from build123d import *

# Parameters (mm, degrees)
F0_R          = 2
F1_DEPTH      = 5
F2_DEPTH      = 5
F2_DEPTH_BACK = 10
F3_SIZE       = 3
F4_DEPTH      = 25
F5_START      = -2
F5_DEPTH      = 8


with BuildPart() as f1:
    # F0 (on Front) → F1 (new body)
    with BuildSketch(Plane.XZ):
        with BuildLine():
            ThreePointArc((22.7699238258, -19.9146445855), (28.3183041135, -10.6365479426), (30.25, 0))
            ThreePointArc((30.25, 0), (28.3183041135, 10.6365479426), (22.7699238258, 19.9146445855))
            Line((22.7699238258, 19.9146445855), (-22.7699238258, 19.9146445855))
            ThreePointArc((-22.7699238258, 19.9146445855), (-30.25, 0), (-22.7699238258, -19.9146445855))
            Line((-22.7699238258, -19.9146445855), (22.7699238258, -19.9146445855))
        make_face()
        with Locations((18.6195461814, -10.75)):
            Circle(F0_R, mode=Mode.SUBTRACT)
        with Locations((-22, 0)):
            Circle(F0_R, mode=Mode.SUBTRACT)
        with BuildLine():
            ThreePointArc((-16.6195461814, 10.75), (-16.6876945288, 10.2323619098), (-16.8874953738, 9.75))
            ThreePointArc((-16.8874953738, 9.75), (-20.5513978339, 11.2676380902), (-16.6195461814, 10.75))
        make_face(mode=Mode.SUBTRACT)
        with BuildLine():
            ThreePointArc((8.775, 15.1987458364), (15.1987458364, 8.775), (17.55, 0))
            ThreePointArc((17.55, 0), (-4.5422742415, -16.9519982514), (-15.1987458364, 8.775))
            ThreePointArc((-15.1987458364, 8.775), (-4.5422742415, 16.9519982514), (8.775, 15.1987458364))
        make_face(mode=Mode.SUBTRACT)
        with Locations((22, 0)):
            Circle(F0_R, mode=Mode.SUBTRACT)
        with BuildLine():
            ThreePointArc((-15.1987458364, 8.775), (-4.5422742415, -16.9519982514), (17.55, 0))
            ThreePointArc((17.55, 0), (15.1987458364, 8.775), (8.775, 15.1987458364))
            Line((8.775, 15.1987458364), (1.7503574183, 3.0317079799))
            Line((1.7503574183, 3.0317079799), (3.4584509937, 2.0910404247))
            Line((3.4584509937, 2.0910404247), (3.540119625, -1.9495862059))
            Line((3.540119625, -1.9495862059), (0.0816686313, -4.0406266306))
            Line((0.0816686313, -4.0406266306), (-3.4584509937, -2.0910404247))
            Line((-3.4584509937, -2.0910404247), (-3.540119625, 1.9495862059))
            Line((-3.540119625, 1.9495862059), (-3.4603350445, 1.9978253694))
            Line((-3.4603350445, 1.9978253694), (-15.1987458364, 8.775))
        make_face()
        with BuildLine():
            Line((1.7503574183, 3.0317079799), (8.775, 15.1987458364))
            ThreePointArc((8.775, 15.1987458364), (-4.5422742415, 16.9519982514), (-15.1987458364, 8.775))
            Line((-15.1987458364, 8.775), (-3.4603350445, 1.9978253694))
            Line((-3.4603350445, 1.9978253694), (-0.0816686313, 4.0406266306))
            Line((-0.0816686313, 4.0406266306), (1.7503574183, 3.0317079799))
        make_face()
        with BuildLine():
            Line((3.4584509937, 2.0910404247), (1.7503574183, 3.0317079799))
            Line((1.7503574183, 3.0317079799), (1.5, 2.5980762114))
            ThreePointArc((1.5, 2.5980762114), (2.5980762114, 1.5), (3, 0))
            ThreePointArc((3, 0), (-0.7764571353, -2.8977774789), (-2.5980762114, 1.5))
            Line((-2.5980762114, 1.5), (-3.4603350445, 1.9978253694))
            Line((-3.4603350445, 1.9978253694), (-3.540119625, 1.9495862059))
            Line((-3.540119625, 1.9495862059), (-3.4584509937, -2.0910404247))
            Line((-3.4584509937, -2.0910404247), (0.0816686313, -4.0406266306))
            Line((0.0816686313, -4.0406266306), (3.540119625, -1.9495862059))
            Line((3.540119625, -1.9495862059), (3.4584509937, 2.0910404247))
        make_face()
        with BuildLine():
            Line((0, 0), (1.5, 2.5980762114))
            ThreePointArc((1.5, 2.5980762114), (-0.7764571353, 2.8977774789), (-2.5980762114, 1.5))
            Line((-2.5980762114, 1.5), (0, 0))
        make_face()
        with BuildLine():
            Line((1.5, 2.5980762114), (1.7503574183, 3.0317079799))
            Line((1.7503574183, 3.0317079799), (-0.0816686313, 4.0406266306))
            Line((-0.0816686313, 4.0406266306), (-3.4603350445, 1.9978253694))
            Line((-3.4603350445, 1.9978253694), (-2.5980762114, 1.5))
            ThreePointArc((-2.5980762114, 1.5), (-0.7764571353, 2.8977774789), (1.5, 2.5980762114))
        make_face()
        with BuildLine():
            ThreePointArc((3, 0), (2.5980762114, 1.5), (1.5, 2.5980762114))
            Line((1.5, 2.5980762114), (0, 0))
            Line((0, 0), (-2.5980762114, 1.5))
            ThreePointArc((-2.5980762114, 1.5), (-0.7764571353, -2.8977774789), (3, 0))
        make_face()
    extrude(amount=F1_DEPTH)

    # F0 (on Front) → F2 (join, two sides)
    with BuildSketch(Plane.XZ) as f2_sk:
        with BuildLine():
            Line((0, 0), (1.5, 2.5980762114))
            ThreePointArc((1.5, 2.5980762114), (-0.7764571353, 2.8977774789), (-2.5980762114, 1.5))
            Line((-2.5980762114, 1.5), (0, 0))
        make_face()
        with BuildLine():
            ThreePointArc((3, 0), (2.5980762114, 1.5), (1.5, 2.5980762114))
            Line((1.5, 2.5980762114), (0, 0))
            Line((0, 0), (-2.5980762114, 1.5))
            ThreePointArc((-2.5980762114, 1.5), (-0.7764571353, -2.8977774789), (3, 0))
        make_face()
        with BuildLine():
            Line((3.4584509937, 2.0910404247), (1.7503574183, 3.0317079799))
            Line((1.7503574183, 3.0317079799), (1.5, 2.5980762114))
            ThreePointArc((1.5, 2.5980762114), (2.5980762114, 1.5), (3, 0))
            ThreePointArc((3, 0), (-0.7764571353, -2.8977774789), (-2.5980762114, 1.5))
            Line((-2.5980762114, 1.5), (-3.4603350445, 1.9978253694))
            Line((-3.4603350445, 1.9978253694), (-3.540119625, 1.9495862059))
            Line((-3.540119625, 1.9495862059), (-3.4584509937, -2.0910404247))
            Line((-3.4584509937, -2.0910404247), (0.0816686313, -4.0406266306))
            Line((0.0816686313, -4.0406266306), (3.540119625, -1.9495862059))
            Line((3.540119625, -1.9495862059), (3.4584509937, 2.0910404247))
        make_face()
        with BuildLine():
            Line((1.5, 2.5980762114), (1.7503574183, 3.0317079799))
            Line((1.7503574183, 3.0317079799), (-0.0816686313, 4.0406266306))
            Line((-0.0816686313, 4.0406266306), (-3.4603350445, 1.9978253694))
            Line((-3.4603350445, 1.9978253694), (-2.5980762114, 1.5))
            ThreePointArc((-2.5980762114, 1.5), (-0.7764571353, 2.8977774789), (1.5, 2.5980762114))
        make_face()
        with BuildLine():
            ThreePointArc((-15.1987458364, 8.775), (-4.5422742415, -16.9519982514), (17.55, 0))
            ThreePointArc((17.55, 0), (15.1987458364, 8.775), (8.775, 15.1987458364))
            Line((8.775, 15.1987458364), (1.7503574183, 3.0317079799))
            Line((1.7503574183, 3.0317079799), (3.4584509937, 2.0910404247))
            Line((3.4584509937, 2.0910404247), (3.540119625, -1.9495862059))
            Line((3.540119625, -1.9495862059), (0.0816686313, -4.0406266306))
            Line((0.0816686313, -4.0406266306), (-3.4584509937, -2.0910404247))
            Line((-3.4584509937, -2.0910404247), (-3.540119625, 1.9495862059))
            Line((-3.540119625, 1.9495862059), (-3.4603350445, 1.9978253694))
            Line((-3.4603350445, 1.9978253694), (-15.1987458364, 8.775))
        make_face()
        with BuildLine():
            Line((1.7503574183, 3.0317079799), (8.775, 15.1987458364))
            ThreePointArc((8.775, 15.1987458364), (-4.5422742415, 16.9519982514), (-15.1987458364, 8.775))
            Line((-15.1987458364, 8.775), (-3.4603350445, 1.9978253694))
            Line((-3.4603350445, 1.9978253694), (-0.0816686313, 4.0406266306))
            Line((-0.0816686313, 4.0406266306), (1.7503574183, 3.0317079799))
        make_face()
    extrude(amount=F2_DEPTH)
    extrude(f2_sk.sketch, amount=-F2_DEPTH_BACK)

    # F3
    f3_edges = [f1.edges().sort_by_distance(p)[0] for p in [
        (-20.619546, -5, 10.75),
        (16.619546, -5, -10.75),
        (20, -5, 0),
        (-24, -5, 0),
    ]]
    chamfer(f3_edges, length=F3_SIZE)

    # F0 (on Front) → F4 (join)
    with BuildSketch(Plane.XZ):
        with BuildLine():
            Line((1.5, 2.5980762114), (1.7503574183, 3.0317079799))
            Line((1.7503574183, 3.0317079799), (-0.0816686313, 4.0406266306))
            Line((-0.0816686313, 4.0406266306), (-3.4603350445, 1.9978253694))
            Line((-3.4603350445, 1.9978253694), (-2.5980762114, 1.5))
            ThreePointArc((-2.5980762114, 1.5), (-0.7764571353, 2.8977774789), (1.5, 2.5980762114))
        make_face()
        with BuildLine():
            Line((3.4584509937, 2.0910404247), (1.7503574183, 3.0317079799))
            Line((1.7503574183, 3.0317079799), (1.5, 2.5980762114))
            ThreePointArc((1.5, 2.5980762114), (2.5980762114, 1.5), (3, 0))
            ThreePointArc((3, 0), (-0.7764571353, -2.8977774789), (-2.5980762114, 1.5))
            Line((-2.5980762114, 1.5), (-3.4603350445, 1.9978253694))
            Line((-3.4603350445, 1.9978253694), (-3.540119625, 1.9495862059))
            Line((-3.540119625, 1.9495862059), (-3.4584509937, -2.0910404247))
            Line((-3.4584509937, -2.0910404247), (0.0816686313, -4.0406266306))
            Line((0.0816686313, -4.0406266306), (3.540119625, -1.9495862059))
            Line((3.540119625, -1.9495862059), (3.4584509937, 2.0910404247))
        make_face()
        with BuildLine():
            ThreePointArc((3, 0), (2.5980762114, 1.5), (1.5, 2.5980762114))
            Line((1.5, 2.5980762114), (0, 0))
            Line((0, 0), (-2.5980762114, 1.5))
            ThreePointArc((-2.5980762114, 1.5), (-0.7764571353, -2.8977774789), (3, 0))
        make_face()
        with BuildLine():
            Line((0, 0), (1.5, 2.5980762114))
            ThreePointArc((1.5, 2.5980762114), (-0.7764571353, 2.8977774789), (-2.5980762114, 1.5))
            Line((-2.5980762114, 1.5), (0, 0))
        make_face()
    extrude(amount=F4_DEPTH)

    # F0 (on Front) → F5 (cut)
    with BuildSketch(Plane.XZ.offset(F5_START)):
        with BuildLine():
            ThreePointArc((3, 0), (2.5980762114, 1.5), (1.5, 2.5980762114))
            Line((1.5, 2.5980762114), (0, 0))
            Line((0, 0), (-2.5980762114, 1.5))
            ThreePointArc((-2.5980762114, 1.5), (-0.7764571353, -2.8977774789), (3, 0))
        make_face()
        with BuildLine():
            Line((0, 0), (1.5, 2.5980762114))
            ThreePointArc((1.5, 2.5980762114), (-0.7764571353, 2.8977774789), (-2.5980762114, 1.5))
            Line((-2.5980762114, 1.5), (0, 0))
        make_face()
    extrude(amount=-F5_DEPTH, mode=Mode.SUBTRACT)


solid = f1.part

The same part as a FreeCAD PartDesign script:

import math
import FreeCAD as App
import Part
import Sketcher
from FreeCAD import Vector


def edges_at(feature, points):
    """Names of the edges that pass closest to the given points."""
    edges = feature.Shape.Edges
    near = lambda p: min(range(len(edges)), key=lambda i: edges[i].distToShape(Part.Vertex(*p))[0])
    return sorted({f"Edge{near(p) + 1}" for p in points})

doc = App.newDocument("Part")
params = doc.addObject("Spreadsheet::Sheet", "Params")
for row, (alias, value) in enumerate([
    ("sketch1_diameter", "4 mm"),
    ("sketch1_radius", "30.25 mm"),
    ("pad1_length", "5 mm"),
    ("sketch2_radius", "17.55 mm"),
    ("pad2_length", "5 mm"),
    ("pad2_length2", "10 mm"),
    ("chamfer_size", "3 mm"),
    ("pad3_length", "25 mm"),
    ("sketch4_radius", "3 mm"),
    ("pocket1_length", "8 mm"),
], start=1):
    params.set(f"A{row}", alias)
    params.set(f"B{row}", "=" + value)
    params.setAlias(f"B{row}", alias)

body = doc.addObject("PartDesign::Body", "Body")

# Sketch on XZ plane
sketch1 = body.newObject("Sketcher::SketchObject", "Sketch")
sketch1.AttachmentSupport = (doc.getObject("XZ_Plane"), [""])
sketch1.MapMode = "FlatFace"
sketch1.addGeometry([
    Part.ArcOfCircle(Part.Circle(Vector(0, 0, 0), Vector(0, 0, 1), 30.2), math.radians(-41), math.radians(41)),  # 0
    Part.LineSegment(Vector(22.8, 19.9, 0), Vector(-22.8, 19.9, 0)),  # 1
    Part.ArcOfCircle(Part.Circle(Vector(0, 0, 0), Vector(0, 0, 1), 30.2), math.radians(139), math.radians(221)),  # 2
    Part.LineSegment(Vector(-22.8, -19.9, 0), Vector(22.8, -19.9, 0)),  # 3
    Part.Circle(Vector(18.6, -10.8, 0), Vector(0, 0, 1), 2),  # 4
    Part.Circle(Vector(-22, 0, 0), Vector(0, 0, 1), 2),  # 5
    Part.ArcOfCircle(Part.Circle(Vector(-18.6, 10.8, 0), Vector(0, 0, 1), 2), math.radians(0), math.radians(330)),  # 6
    Part.ArcOfCircle(Part.Circle(Vector(-18.6, 10.8, 0), Vector(0, 0, 1), 2), math.radians(-30), math.radians(0)),  # 7
    Part.Circle(Vector(22, 0, 0), Vector(0, 0, 1), 2),  # 8
], False)
sketch1.addConstraint([
    Sketcher.Constraint("Coincident", 0, 2, 1, 1),
    Sketcher.Constraint("Coincident", 1, 2, 2, 1),
    Sketcher.Constraint("Coincident", 2, 2, 3, 1),
    Sketcher.Constraint("Coincident", 3, 2, 0, 1),
    Sketcher.Constraint("Tangent", 6, 1, 7, 2),
    Sketcher.Constraint("Coincident", 7, 1, 6, 2),
    Sketcher.Constraint("Horizontal", 1),
    Sketcher.Constraint("Horizontal", 3),
    Sketcher.Constraint("Coincident", 0, 3, -1, 1),
    Sketcher.Constraint("Coincident", 2, 3, -1, 1),
    Sketcher.Constraint("Equal", 0, 2),
    Sketcher.Constraint("Equal", 4, 5),
    Sketcher.Constraint("Equal", 5, 6),
    Sketcher.Constraint("Equal", 7, 8),
    Sketcher.Constraint("Symmetric", 4, 3, 6, 3, -1, 1),
    Sketcher.Constraint("Symmetric", 5, 3, 8, 3, -1, 1),
    Sketcher.Constraint("PointOnObject", 5, 3, -1),
    Sketcher.Constraint("Horizontal", 7, 3, 6, 1),
    Sketcher.Constraint("Vertical", 1, 2, 2, 2),
    Sketcher.Constraint("Diameter", 4, 4.0),
    Sketcher.Constraint("Radius", 0, 30.25),
    Sketcher.Constraint("DistanceX", 5, 3, -1, 1, 22.0),
    Sketcher.Constraint("DistanceY", 7, 1, 6, 1, 1.0),
    Sketcher.Constraint("DistanceY", 4, 3, 6, 3, 21.5),
    Sketcher.Constraint("DistanceX", 1, 2, 1, 1, 45.539848),
    Sketcher.Constraint("DistanceX", 6, 3, 0, 2, 41.38947),
])
sketch1.setExpression("Constraints[19]", "Params.sketch1_diameter")
sketch1.setExpression("Constraints[20]", "Params.sketch1_radius")
pad1 = body.newObject("PartDesign::Pad", "Pad")
pad1.Profile = sketch1
pad1.setExpression("Length", "Params.pad1_length")

# Sketch on XZ plane
sketch2 = body.newObject("Sketcher::SketchObject", "Sketch001")
sketch2.AttachmentSupport = (doc.getObject("XZ_Plane"), [""])
sketch2.MapMode = "FlatFace"
sketch2.addGeometry([
    Part.ArcOfCircle(Part.Circle(Vector(0, 0, 0), Vector(0, 0, 1), 18), math.radians(150), math.radians(360)),
    Part.ArcOfCircle(Part.Circle(Vector(0, 0, 0), Vector(0, 0, 1), 18), math.radians(0), math.radians(60)),
    Part.ArcOfCircle(Part.Circle(Vector(0, 0, 0), Vector(0, 0, 1), 18), math.radians(60), math.radians(150)),
], False)
sketch2.addConstraint([
    Sketcher.Constraint("Tangent", 0, 2, 1, 1),
    Sketcher.Constraint("Tangent", 1, 2, 2, 1),
    Sketcher.Constraint("Tangent", 2, 2, 0, 1),
    Sketcher.Constraint("Coincident", 0, 3, -1, 1),
    Sketcher.Constraint("PointOnObject", 0, 2, -1),
    Sketcher.Constraint("Radius", 0, 17.55),
    Sketcher.Constraint("DistanceX", -1, 1, 1, 2, 8.775),
    Sketcher.Constraint("DistanceY", -1, 1, 2, 2, 8.775),
])
sketch2.setExpression("Constraints[5]", "Params.sketch2_radius")
pad2 = body.newObject("PartDesign::Pad", "Pad001")
pad2.Profile = sketch2
pad2.Type = "TwoLengths"
pad2.setExpression("Length", "Params.pad2_length")
pad2.setExpression("Length2", "Params.pad2_length2")
doc.recompute()

chamfer = body.newObject("PartDesign::Chamfer", "Chamfer")
chamfer.Base = (pad2, edges_at(pad2, [
    (-20.551, -5, 11.268),
    (16.62, -5, -10.75),
    (20, -5, 0),
    (-24, -5, 0),
]))
chamfer.setExpression("Size", "Params.chamfer_size")

# Sketch on XZ plane
sketch3 = body.newObject("Sketcher::SketchObject", "Sketch002")
sketch3.AttachmentSupport = (doc.getObject("XZ_Plane"), [""])
sketch3.MapMode = "FlatFace"
sketch3.addGeometry([
    Part.LineSegment(Vector(1.75, 3.03, 0), Vector(-0.08, 4.04, 0)),  # 0
    Part.LineSegment(Vector(-0.08, 4.04, 0), Vector(-3.46, 2, 0)),  # 1
    Part.LineSegment(Vector(-3.46, 2, 0), Vector(-3.54, 1.95, 0)),  # 2
    Part.LineSegment(Vector(-3.54, 1.95, 0), Vector(-3.46, -2.09, 0)),  # 3
    Part.LineSegment(Vector(-3.46, -2.09, 0), Vector(0.08, -4.04, 0)),  # 4
    Part.LineSegment(Vector(0.08, -4.04, 0), Vector(3.54, -1.95, 0)),  # 5
    Part.LineSegment(Vector(3.54, -1.95, 0), Vector(3.46, 2.09, 0)),  # 6
    Part.LineSegment(Vector(3.46, 2.09, 0), Vector(1.75, 3.03, 0)),  # 7
], False)
sketch3.addConstraint([
    Sketcher.Constraint("Coincident", 0, 2, 1, 1),
    Sketcher.Constraint("Coincident", 1, 2, 2, 1),
    Sketcher.Constraint("Coincident", 2, 2, 3, 1),
    Sketcher.Constraint("Coincident", 3, 2, 4, 1),
    Sketcher.Constraint("Coincident", 4, 2, 5, 1),
    Sketcher.Constraint("Coincident", 5, 2, 6, 1),
    Sketcher.Constraint("Coincident", 6, 2, 7, 1),
    Sketcher.Constraint("Coincident", 7, 2, 0, 1),
    Sketcher.Constraint("Symmetric", 0, 2, 4, 2, -1, 1),
    Sketcher.Constraint("Symmetric", 2, 2, 5, 2, -1, 1),
    Sketcher.Constraint("Symmetric", 3, 2, 6, 2, -1, 1),
    Sketcher.Constraint("Parallel", 1, 2),
    Sketcher.Constraint("Parallel", 0, 4),
    Sketcher.Constraint("Equal", 3, 4),
    Sketcher.Constraint("Equal", 4, 5),
    Sketcher.Constraint("DistanceY", 1, 2, 0, 2, 2.042801),
    Sketcher.Constraint("Distance", 3, 4.041452),
    Sketcher.Constraint("DistanceX", 0, 2, -1, 1, 0.081669),
    Sketcher.Constraint("DistanceX", 2, 2, -1, 1, 3.54012),
    Sketcher.Constraint("DistanceX", 3, 2, -1, 1, 3.458451),
    Sketcher.Constraint("DistanceY", 7, 2, 0, 2, 1.008919),
])
pad3 = body.newObject("PartDesign::Pad", "Pad002")
pad3.Profile = sketch3
pad3.setExpression("Length", "Params.pad3_length")

# Sketch on XZ plane
sketch4 = body.newObject("Sketcher::SketchObject", "Sketch003")
sketch4.AttachmentSupport = (doc.getObject("XZ_Plane"), [""])
sketch4.MapMode = "FlatFace"
sketch4.AttachmentOffset = App.Placement(Vector(0, 0, -2), App.Rotation())
sketch4.addGeometry([
    Part.ArcOfCircle(Part.Circle(Vector(0, 0, 0), Vector(0, 0, 1), 3), math.radians(0), math.radians(60)),
    Part.ArcOfCircle(Part.Circle(Vector(0, 0, 0), Vector(0, 0, 1), 3), math.radians(60), math.radians(150)),
    Part.ArcOfCircle(Part.Circle(Vector(0, 0, 0), Vector(0, 0, 1), 3), math.radians(150), math.radians(360)),
], False)
sketch4.addConstraint([
    Sketcher.Constraint("Tangent", 0, 2, 1, 1),
    Sketcher.Constraint("Tangent", 1, 2, 2, 1),
    Sketcher.Constraint("Tangent", 2, 2, 0, 1),
    Sketcher.Constraint("Coincident", 0, 3, -1, 1),
    Sketcher.Constraint("PointOnObject", 2, 2, -1),
    Sketcher.Constraint("Radius", 0, 3.0),
    Sketcher.Constraint("DistanceX", -1, 1, 0, 2, 1.5),
    Sketcher.Constraint("DistanceY", -1, 1, 1, 2, 1.5),
])
sketch4.setExpression("Constraints[5]", "Params.sketch4_radius")
pocket1 = body.newObject("PartDesign::Pocket", "Pocket")
pocket1.Profile = sketch4
pocket1.setExpression("Length", "Params.pocket1_length")

doc.recompute()
